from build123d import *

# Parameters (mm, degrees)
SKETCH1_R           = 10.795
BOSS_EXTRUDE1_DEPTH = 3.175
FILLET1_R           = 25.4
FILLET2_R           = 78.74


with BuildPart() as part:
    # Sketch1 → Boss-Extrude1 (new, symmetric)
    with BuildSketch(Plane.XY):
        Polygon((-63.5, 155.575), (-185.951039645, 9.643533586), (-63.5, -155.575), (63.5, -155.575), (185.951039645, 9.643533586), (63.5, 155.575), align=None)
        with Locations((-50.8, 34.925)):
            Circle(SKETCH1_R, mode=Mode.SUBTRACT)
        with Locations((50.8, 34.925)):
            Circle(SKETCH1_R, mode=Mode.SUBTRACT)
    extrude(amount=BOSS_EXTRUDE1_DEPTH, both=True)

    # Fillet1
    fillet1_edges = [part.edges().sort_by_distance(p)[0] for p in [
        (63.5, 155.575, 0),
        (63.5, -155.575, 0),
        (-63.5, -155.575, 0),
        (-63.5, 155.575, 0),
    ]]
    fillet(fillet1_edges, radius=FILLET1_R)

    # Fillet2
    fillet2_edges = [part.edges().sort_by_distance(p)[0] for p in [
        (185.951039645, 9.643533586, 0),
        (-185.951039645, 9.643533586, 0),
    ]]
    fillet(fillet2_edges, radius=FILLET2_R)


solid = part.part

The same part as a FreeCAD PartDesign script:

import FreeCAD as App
import Part
import Sketcher

V = App.Vector
Q = App.Units.Quantity


def edges_at(feature, points):
    """Names of the edges that pass closest to the given points."""
    edges = feature.Shape.Edges
    near = lambda p: min(range(len(edges)), key=lambda i: edges[i].distToShape(Part.Vertex(*p))[0])
    return sorted({f"Edge{near(p) + 1}" for p in points})

doc = App.newDocument("Part")
body = doc.addObject("PartDesign::Body", "Body")

# Sketch on XY plane
sketch1 = body.newObject("Sketcher::SketchObject", "Sketch")
sketch1.AttachmentSupport = (doc.getObject("XY_Plane"), [""])
sketch1.MapMode = "FlatFace"
sketch1.addGeometry(Part.LineSegment(V(-64, 156, 0), V(-186, 10, 0)), False)
sketch1.addGeometry(Part.LineSegment(V(-186, 10, 0), V(-64, -156, 0)), False)
sketch1.addGeometry(Part.LineSegment(V(-64, -156, 0), V(64, -156, 0)), False)
sketch1.addGeometry(Part.LineSegment(V(64, -156, 0), V(186, 10, 0)), False)
sketch1.addGeometry(Part.LineSegment(V(186, 10, 0), V(64, 156, 0)), False)
sketch1.addGeometry(Part.LineSegment(V(64, 156, 0), V(-64, 156, 0)), False)
sketch1.addGeometry(Part.Circle(V(-51, 35, 0), V(0, 0, 1), 11), False)
sketch1.addGeometry(Part.Circle(V(51, 35, 0), V(0, 0, 1), 11), False)
sketch1.addConstraint(Sketcher.Constraint("Coincident", 0, 2, 1, 1))
sketch1.addConstraint(Sketcher.Constraint("Coincident", 1, 2, 2, 1))
sketch1.addConstraint(Sketcher.Constraint("Coincident", 2, 2, 3, 1))
sketch1.addConstraint(Sketcher.Constraint("Coincident", 3, 2, 4, 1))
sketch1.addConstraint(Sketcher.Constraint("Coincident", 4, 2, 5, 1))
sketch1.addConstraint(Sketcher.Constraint("Coincident", 5, 2, 0, 1))
sketch1.addConstraint(Sketcher.Constraint("Horizontal", 2))
sketch1.addConstraint(Sketcher.Constraint("Horizontal", 5))
sketch1.addConstraint(Sketcher.Constraint("Equal", 6, 7))
sketch1.addConstraint(Sketcher.Constraint("Symmetric", 1, 2, 4, 2, -1, 1))
sketch1.addConstraint(Sketcher.Constraint("Symmetric", 6, 3, 7, 3, -2))
sketch1.addConstraint(Sketcher.Constraint("Symmetric", 0, 2, 3, 2, -2))
sketch1.addConstraint(Sketcher.Constraint("Vertical", 2, 2, 4, 2))
sketch1.addConstraint(Sketcher.Constraint("Vertical", 1, 2, 5, 2))
sketch1.addConstraint(Sketcher.Constraint("Diameter", 6, Q("0.85 in")))
sketch1.addConstraint(Sketcher.Constraint("DistanceX", 2, 1, 2, 2, Q("5 in")))
sketch1.addConstraint(Sketcher.Constraint("DistanceX", 6, 3, -1, 1, Q("2 in")))
sketch1.addConstraint(Sketcher.Constraint("Angle", 0, Q("-130 deg")))
sketch1.addConstraint(Sketcher.Constraint("Distance", 0, Q("7.5 in")))
sketch1.addConstraint(Sketcher.Constraint("DistanceY", 1, 2, 6, 3, Q("7.5 in")))
sketch1.addConstraint(Sketcher.Constraint("DistanceY", 7, 3, 4, 2, Q("4.75 in")))
pad1 = body.newObject("PartDesign::Pad", "Pad")
pad1.Profile = sketch1
pad1.Length = Q("0.25 in")
pad1.Midplane = True
doc.recompute()

fillet = body.newObject("PartDesign::Fillet", "Fillet")
fillet.Base = (pad1, edges_at(pad1, [
    (63.5, 155.575, 0),
    (63.5, -155.575, 0),
    (-63.5, -155.575, 0),
    (-63.5, 155.575, 0),
]))
fillet.Radius = Q("1 in")
doc.recompute()

fillet2 = body.newObject("PartDesign::Fillet", "Fillet001")
fillet2.Base = (fillet, edges_at(fillet, [(185.951, 9.644, 0), (-185.951, 9.644, 0)]))
fillet2.Radius = Q("3.1 in")

doc.recompute()
